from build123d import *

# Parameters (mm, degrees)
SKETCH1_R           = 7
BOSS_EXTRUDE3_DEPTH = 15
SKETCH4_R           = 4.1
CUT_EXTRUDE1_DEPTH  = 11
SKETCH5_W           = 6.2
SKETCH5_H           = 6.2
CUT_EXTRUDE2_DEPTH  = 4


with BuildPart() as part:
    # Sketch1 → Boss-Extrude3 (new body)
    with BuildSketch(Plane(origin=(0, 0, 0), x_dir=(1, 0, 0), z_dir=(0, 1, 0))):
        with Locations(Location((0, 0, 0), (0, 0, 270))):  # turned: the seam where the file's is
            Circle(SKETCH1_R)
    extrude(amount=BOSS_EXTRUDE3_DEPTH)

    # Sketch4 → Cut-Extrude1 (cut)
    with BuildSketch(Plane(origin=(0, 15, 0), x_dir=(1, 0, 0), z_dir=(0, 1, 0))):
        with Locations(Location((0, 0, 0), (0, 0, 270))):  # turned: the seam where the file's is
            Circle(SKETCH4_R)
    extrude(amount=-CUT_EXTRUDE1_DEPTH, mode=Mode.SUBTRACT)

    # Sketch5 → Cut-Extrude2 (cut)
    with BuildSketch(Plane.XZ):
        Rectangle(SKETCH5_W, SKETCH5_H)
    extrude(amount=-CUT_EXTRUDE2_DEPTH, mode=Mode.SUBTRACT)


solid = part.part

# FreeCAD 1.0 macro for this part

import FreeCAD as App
import Part
import Sketcher

V = App.Vector
Q = App.Units.Quantity

doc = App.newDocument("Part")
body = doc.addObject("PartDesign::Body", "Body")

sketch1 = body.newObject("Sketcher::SketchObject", "Sketch")
sketch1.AttachmentSupport = (doc.getObject("XZ_Plane"), [""])
sketch1.MapMode = "FlatFace"
sketch1.addGeometry(Part.Circle(V(0, 0, 0), V(0, 0, 1), 7), False)
sketch1.addConstraint([
    Sketcher.Constraint("Coincident", 0, 3, -1, 1),
    Sketcher.Constraint("Diameter", 0, Q("14 mm")),
])
pad1 = body.newObject("PartDesign::Pad", "Pad")
pad1.Profile = sketch1
pad1.Length = 15
pad1.Reversed = True

sketch2 = body.newObject("Sketcher::SketchObject", "Sketch001")
sketch2.AttachmentSupport = (doc.getObject("XZ_Plane"), [""])
sketch2.MapMode = "FlatFace"
sketch2.AttachmentOffset = App.Placement(V(0, 0, -15), App.Rotation())
sketch2.addGeometry(Part.Circle(V(0, 0, 0), V(0, 0, 1), 4.1), False)
sketch2.addConstraint([
    Sketcher.Constraint("Coincident", 0, 3, -1, 1),
    Sketcher.Constraint("Diameter", 0, Q("8.2 mm")),
])
pocket1 = body.newObject("PartDesign::Pocket", "Pocket")
pocket1.Profile = sketch2
pocket1.Length = 11
pocket1.Reversed = True

sketch3 = body.newObject("Sketcher::SketchObject", "Sketch002")
sketch3.AttachmentSupport = (doc.getObject("XZ_Plane"), [""])
sketch3.MapMode = "FlatFace"
sketch3.addGeometry([
    Part.LineSegment(V(-3, 3, 0), V(-3, -3, 0)),
    Part.LineSegment(V(-3, -3, 0), V(3, -3, 0)),
    Part.LineSegment(V(3, -3, 0), V(3, 3, 0)),
    Part.LineSegment(V(3, 3, 0), V(-3, 3, 0)),
], False)
sketch3.addConstraint([
    Sketcher.Constraint("Coincident", 0, 2, 1, 1),
    Sketcher.Constraint("Coincident", 1, 2, 2, 1),
    Sketcher.Constraint("Coincident", 2, 2, 3, 1),
    Sketcher.Constraint("Coincident", 3, 2, 0, 1),
    Sketcher.Constraint("Vertical", 0),
    Sketcher.Constraint("Horizontal", 1),
    Sketcher.Constraint("Vertical", 2),
    Sketcher.Constraint("Horizontal", 3),
    Sketcher.Constraint("Symmetric", 0, 2, 2, 2, -1, 1),
    Sketcher.Constraint("Equal", 3, 0),
    Sketcher.Constraint("DistanceX", 1, 1, 1, 2, Q("6.2 mm")),
])
pocket2 = body.newObject("PartDesign::Pocket", "Pocket001")
pocket2.Profile = sketch3
pocket2.Length = 4

doc.recompute()
